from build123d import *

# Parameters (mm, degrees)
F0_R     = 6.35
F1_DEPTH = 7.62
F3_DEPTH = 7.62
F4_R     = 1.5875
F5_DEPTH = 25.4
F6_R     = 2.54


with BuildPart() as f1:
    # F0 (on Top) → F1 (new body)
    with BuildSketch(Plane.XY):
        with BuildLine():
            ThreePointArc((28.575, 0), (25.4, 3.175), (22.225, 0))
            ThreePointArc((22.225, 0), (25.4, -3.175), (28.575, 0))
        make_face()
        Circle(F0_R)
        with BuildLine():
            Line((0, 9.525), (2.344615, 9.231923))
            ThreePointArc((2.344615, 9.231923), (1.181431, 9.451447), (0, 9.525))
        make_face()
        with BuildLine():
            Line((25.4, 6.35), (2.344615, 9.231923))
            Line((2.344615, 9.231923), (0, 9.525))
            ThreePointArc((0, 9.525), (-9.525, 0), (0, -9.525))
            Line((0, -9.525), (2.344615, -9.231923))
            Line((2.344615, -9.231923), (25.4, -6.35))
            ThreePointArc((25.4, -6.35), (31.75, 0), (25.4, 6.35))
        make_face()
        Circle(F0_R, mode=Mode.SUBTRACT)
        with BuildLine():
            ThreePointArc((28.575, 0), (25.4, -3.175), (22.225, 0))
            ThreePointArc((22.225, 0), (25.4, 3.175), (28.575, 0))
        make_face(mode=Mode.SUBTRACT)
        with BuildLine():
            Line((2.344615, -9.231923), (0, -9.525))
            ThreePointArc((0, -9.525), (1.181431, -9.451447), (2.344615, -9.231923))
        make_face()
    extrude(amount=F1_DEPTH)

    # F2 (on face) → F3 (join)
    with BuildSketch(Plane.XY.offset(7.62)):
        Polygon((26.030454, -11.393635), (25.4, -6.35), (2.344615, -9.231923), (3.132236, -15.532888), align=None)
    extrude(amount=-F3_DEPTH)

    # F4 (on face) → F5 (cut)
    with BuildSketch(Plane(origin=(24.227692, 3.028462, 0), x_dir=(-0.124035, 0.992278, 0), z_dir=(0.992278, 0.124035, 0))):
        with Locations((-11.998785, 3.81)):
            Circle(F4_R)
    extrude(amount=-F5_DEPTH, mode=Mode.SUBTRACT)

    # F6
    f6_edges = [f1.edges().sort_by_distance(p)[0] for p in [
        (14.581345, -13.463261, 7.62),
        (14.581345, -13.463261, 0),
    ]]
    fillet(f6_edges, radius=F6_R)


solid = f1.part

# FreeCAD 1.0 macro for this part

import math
import FreeCAD as App
import Part
import Sketcher
from FreeCAD import Vector
Q = App.Units.Quantity


def edges_at(feature, points):
    """Names of the edges that pass closest to the given points."""
    edges = feature.Shape.Edges
    near = lambda p: min(range(len(edges)), key=lambda i: edges[i].distToShape(Part.Vertex(*p))[0])
    return sorted({f"Edge{near(p) + 1}" for p in points})


def add_polygon(sketch, points):
    """Adds a closed chain of lines whose ends are joined by coincident constraints."""
    first, n = sketch.GeometryCount, len(points)
    for a, b in zip(points, points[1:] + points[:1]):
        sketch.addGeometry(Part.LineSegment(App.Vector(*a, 0), App.Vector(*b, 0)), False)
    for i in range(n):
        sketch.addConstraint(Sketcher.Constraint("Coincident", first + i, 2, first + (i + 1) % n, 1))

doc = App.newDocument("Part")
body = doc.addObject("PartDesign::Body", "Body")

# Sketch on XY plane
sketch1 = doc.addObject("Sketcher::SketchObject", "Sketch")
body.addObject(sketch1)
sketch1.AttachmentSupport = (doc.XY_Plane, [""])
sketch1.MapMode = "FlatFace"
sketch1.addGeometry([
    Part.LineSegment(Vector(25.4, 6.3, 0), Vector(2.3, 9.2, 0)),  # 0
    Part.ArcOfCircle(Part.Circle(Vector(0, 0, 0), Vector(0, 0, 1), 9.5), math.radians(75.75), math.radians(90)),  # 1
    Part.ArcOfCircle(Part.Circle(Vector(0, 0, 0), Vector(0, 0, 1), 9.5), math.radians(90), math.radians(270)),  # 2
    Part.ArcOfCircle(Part.Circle(Vector(0, 0, 0), Vector(0, 0, 1), 9.5), math.radians(-90), math.radians(-75.75)),  # 3
    Part.LineSegment(Vector(2.3, -9.2, 0), Vector(25.4, -6.3, 0)),  # 4
    Part.ArcOfCircle(Part.Circle(Vector(25.4, 0, 0), Vector(0, 0, 1), 6.3), math.radians(-90), math.radians(90)),  # 5
    Part.Circle(Vector(0, 0, 0), Vector(0, 0, 1), 6.3),  # 6
    Part.Circle(Vector(25.4, 0, 0), Vector(0, 0, 1), 3.2),  # 7
], False)
sketch1.addConstraint([
    Sketcher.Constraint("Coincident", 0, 2, 1, 1),
    Sketcher.Constraint("Tangent", 1, 2, 2, 1),
    Sketcher.Constraint("Tangent", 2, 2, 3, 1),
    Sketcher.Constraint("Coincident", 3, 2, 4, 1),
    Sketcher.Constraint("Coincident", 4, 2, 5, 1),
    Sketcher.Constraint("Coincident", 5, 2, 0, 1),
    Sketcher.Constraint("Coincident", 2, 3, -1, 1),
    Sketcher.Constraint("Coincident", 6, 3, -1, 1),
    Sketcher.Constraint("Coincident", 7, 3, 5, 3),
    Sketcher.Constraint("Equal", 1, 3),
    Sketcher.Constraint("Equal", 5, 6),
    Sketcher.Constraint("Symmetric", 4, 2, 5, 2, -1),
    Sketcher.Constraint("PointOnObject", 1, 2, -2),
    Sketcher.Constraint("PointOnObject", 2, 2, -2),
    Sketcher.Constraint("Vertical", 0, 2, 3, 2),
    Sketcher.Constraint("Vertical", 7, 3, 4, 2),
    Sketcher.Constraint("Diameter", 6, Q("0.5 in")),
    Sketcher.Constraint("Diameter", 7, Q("0.25 in")),
    Sketcher.Constraint("DistanceX", -1, 1, 5, 3, Q("1 in")),
    Sketcher.Constraint("Radius", 2, Q("0.375 in")),
    Sketcher.Constraint("Radius", 1, 9.524958),
    Sketcher.Constraint("DistanceX", 1, 3, 0, 2, 2.34461),
])
pad1 = doc.addObject("PartDesign::Pad", "Pad")
body.addObject(pad1)
pad1.Profile = sketch1
pad1.Length = Q("0.3 in")

# Sketch on XY plane
sketch2 = doc.addObject("Sketcher::SketchObject", "Sketch001")
body.addObject(sketch2)
sketch2.AttachmentSupport = (doc.XY_Plane, [""])
sketch2.MapMode = "FlatFace"
sketch2.AttachmentOffset = App.Placement(Vector(0, 0, 0.3 * 25.4), App.Rotation())
add_polygon(sketch2, [(26, -11), (25, -6), (2, -9), (3, -16)])  # lines 0-3
sketch2.addConstraint([
    Sketcher.Constraint("Perpendicular", 0, 1),
    Sketcher.Constraint("Perpendicular", 1, 2),
    Sketcher.Constraint("DistanceX", -1, 1, 0, 2, Q("1 in")),
    Sketcher.Constraint("Distance", 2, Q("0.25 in")),
    Sketcher.Constraint("DistanceY", 0, 2, -1, 1, Q("0.25 in")),
    Sketcher.Constraint("Distance", 3, 23.269332),
    Sketcher.Constraint("DistanceX", 1, 2, 2, 2, 0.787621),
    Sketcher.Constraint("DistanceX", 2, 2, 3, 2, 22.898218),
])
pad2 = doc.addObject("PartDesign::Pad", "Pad001")
body.addObject(pad2)
pad2.Profile = sketch2
pad2.Length = Q("0.3 in")
pad2.Reversed = True

# Sketch on an angled plane
sketch3 = doc.addObject("Sketcher::SketchObject", "Sketch002")
body.addObject(sketch3)
sketch3.Placement = App.Placement(Vector(24.227692, 3.028462, 0), App.Rotation(Vector(-0.124034981, 0.992277846, 0), Vector(0, 0, 1), Vector(0.992277846, 0.124034981, 0), "ZXY"))
sketch3.addGeometry(Part.Circle(Vector(-12, 3.8, 0), Vector(0, 0, 1), 1.6), False)
sketch3.addConstraint([
    Sketcher.Constraint("Diameter", 0, Q("0.125 in")),
    Sketcher.Constraint("DistanceY", -1, 1, 0, 3, Q("0.15 in")),
    Sketcher.Constraint("DistanceX", 0, 3, -1, 1, 11.998785),
])
pocket1 = doc.addObject("PartDesign::Pocket", "Pocket")
body.addObject(pocket1)
pocket1.Profile = sketch3
pocket1.Length = Q("1 in")
doc.recompute()

fillet = doc.addObject("PartDesign::Fillet", "Fillet")
body.addObject(fillet)
fillet.Base = (pocket1, edges_at(pocket1, [(14.581, -13.463, 7.62), (14.581, -13.463, 0)]))
fillet.Radius = Q("0.1 in")

doc.recompute()
